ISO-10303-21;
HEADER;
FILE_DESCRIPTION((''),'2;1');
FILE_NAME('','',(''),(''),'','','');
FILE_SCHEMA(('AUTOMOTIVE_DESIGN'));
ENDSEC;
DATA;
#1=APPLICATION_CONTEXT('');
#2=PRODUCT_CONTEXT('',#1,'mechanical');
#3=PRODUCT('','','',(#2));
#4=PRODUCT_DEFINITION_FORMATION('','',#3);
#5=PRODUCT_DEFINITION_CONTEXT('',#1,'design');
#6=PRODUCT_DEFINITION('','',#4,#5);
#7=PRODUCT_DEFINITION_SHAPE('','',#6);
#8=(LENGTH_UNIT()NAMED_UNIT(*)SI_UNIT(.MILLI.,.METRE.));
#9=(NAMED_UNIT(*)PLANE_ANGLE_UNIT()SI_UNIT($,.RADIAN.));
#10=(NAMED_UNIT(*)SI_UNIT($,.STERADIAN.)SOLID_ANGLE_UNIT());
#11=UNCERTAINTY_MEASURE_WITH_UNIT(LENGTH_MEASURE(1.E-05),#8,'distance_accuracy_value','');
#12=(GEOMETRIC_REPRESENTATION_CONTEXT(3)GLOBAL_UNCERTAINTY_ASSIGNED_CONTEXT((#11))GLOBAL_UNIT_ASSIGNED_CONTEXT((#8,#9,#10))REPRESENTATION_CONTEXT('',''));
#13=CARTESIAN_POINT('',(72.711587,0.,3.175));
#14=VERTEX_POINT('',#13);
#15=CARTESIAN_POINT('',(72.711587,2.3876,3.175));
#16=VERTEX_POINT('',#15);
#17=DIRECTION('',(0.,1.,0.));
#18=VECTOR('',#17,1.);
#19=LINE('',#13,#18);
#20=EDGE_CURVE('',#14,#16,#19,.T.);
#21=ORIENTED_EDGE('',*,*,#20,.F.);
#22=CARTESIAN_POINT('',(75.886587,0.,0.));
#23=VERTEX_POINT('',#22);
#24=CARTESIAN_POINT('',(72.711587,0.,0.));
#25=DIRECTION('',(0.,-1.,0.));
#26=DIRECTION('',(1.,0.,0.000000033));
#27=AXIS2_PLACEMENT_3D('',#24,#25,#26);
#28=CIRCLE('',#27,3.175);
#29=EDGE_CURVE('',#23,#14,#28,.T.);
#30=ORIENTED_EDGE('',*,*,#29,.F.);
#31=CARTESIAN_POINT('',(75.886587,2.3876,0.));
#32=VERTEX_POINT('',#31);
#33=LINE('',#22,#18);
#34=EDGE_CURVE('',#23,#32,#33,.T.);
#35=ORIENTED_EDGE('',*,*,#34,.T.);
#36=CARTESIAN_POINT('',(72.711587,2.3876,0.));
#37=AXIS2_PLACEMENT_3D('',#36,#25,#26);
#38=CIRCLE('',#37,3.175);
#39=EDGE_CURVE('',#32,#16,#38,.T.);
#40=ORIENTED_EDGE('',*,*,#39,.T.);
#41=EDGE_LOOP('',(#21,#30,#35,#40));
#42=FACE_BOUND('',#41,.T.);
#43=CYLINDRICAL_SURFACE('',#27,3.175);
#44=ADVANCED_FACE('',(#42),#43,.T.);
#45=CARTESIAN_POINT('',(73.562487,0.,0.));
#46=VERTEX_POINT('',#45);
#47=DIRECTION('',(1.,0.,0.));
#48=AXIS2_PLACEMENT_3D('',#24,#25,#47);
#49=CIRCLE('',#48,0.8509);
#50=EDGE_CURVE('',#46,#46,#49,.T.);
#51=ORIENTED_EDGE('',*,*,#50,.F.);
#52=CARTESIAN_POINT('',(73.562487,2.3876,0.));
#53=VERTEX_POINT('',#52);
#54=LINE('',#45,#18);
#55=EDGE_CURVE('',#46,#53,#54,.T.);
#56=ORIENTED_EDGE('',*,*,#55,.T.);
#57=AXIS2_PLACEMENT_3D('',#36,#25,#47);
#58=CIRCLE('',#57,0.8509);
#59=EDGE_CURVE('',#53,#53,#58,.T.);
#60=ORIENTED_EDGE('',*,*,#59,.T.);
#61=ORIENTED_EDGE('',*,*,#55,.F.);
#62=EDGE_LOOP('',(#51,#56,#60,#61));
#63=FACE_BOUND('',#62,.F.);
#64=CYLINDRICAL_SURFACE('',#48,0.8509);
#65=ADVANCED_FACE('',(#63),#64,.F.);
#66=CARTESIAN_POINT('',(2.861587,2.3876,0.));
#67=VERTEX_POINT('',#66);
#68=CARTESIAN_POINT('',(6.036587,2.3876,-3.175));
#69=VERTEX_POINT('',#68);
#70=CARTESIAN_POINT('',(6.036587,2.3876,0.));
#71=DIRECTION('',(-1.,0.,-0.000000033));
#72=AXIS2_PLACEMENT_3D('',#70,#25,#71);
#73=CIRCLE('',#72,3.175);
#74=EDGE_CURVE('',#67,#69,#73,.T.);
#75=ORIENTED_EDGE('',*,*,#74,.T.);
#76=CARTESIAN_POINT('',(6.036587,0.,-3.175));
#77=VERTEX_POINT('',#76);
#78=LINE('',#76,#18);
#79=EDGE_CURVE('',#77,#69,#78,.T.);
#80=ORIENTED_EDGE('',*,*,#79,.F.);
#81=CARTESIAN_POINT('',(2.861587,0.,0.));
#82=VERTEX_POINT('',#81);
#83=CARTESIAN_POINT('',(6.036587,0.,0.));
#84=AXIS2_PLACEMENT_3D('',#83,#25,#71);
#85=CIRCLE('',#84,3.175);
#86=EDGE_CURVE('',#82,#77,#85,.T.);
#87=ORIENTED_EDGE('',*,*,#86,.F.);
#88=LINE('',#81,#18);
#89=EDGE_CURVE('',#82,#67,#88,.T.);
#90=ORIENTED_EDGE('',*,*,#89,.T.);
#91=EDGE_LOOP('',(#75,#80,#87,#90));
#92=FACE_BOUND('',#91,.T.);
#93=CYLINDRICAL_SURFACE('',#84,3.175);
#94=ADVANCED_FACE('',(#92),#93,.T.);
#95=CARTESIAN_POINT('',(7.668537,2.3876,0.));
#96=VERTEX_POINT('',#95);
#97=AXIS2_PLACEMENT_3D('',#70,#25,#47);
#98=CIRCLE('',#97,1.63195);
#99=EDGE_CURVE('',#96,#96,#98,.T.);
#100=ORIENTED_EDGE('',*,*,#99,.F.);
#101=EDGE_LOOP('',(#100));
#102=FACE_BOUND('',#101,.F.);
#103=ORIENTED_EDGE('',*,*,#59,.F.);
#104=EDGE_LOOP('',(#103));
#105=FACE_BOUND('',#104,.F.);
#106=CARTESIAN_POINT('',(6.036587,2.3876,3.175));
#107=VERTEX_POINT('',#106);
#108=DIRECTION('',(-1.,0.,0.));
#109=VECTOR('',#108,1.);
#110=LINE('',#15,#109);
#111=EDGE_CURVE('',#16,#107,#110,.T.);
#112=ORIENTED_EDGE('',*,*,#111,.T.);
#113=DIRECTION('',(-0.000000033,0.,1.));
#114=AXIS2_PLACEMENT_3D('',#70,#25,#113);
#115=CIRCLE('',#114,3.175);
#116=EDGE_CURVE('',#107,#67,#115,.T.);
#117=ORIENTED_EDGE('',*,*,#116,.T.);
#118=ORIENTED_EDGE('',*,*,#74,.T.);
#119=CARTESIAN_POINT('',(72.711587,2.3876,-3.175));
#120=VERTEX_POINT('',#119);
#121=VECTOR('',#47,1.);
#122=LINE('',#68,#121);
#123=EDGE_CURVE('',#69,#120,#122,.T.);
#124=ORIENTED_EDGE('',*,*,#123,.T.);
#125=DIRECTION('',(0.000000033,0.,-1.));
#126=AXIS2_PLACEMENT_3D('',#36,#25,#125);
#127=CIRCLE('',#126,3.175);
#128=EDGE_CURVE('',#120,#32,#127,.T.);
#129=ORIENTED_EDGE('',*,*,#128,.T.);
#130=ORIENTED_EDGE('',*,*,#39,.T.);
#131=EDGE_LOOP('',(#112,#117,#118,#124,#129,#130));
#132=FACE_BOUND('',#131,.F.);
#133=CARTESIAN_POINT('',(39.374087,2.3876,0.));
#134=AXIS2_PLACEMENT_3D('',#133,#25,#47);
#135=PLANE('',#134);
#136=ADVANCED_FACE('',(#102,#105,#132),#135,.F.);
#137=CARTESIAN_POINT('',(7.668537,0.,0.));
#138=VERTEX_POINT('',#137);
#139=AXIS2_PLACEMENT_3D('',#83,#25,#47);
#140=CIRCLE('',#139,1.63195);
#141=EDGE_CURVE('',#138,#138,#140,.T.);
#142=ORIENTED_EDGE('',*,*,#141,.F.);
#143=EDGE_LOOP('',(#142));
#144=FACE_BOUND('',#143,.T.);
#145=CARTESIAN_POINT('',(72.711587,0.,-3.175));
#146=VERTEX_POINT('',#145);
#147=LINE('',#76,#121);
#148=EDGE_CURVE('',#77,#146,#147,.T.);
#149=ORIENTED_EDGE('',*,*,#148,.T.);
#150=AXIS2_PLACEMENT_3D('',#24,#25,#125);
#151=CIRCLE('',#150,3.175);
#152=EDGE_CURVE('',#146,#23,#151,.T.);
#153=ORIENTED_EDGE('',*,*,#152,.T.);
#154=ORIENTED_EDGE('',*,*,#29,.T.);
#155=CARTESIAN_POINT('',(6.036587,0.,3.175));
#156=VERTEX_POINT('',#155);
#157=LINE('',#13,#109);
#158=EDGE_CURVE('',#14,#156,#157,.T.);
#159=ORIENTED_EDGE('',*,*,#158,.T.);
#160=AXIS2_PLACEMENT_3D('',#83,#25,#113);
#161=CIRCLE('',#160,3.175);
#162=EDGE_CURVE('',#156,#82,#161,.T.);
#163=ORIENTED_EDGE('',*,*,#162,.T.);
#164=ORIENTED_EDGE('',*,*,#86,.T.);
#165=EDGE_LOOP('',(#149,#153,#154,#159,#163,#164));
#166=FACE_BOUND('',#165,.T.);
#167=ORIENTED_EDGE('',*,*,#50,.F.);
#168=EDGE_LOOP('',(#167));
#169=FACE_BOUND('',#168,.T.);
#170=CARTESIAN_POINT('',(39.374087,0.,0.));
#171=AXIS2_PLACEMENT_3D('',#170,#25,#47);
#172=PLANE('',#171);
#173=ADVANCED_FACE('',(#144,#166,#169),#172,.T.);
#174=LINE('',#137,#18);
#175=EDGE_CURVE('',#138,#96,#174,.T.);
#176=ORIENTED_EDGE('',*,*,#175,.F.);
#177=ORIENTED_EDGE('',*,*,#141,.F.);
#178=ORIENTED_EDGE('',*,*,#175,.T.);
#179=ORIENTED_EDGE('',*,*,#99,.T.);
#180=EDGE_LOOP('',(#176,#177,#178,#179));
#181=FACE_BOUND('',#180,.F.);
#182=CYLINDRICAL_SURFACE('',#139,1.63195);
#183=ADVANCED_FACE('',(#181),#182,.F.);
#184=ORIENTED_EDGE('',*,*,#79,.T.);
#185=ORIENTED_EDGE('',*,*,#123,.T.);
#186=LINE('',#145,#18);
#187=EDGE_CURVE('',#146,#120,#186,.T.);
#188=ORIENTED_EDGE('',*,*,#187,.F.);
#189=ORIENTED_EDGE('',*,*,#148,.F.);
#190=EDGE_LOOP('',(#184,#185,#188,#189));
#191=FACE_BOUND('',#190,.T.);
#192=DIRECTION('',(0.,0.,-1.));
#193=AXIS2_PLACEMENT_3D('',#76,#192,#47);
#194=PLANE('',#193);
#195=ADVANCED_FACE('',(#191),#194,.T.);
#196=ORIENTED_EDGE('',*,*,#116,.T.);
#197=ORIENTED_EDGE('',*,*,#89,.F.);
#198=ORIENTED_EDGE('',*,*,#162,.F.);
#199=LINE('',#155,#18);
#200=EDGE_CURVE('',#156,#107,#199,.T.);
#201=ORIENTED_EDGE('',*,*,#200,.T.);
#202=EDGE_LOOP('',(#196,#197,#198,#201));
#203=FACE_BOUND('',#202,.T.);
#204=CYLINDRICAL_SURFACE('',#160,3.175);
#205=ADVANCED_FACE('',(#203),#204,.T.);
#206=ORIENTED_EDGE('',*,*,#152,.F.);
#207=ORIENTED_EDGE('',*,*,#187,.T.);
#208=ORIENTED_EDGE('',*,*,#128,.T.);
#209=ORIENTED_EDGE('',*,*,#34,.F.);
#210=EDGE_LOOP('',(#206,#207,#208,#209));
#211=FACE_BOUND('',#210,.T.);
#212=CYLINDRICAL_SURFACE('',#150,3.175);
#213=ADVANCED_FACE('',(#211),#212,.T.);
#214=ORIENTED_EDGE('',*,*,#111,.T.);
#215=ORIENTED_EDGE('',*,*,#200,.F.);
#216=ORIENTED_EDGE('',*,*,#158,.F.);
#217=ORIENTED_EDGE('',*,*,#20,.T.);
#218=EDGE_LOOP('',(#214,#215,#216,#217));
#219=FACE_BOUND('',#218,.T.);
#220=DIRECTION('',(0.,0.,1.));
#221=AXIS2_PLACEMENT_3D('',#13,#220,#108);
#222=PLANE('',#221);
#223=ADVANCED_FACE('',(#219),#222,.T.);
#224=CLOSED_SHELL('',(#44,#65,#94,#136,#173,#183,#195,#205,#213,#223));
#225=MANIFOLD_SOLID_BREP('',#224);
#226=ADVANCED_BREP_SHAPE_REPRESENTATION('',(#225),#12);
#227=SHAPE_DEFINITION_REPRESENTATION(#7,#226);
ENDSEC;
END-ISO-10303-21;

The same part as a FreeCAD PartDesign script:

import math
import FreeCAD as App
import Part
import Sketcher

V = App.Vector
Q = App.Units.Quantity

doc = App.newDocument("Part")
params = doc.addObject("Spreadsheet::Sheet", "Params")
for row, (alias, value) in enumerate([
    ("sketch1_diameter", "0.067 in"),
    ("sketch1_radius", "0.125 in"),
    ("sketch1_width", "2.625 in"),
    ("pad1_length", "0.094 in"),
], start=1):
    params.set(f"A{row}", alias)
    params.set(f"B{row}", "=" + value)
    params.setAlias(f"B{row}", alias)

body = doc.addObject("PartDesign::Body", "Body")

sketch1 = body.newObject("Sketcher::SketchObject", "Sketch")
sketch1.AttachmentSupport = (doc.getObject("XZ_Plane"), [""])
sketch1.MapMode = "FlatFace"
sketch1.addGeometry(Part.ArcOfCircle(Part.Circle(V(72.7, 0, 0), V(0, 0, 1), 3.2), math.radians(0), math.radians(90)), False)
sketch1.addGeometry(Part.LineSegment(V(72.7, 3.2, 0), V(6, 3.2, 0)), False)
sketch1.addGeometry(Part.ArcOfCircle(Part.Circle(V(6, 0, 0), V(0, 0, 1), 3.2), math.radians(90), math.radians(180)), False)
sketch1.addGeometry(Part.ArcOfCircle(Part.Circle(V(6, 0, 0), V(0, 0, 1), 3.2), math.radians(-180), math.radians(-90)), False)
sketch1.addGeometry(Part.LineSegment(V(6, -3.2, 0), V(72.7, -3.2, 0)), False)
sketch1.addGeometry(Part.ArcOfCircle(Part.Circle(V(72.7, 0, 0), V(0, 0, 1), 3.2), math.radians(-90), math.radians(0)), False)
sketch1.addGeometry(Part.Circle(V(6, 0, 0), V(0, 0, 1), 1.6), False)
sketch1.addGeometry(Part.Circle(V(72.7, 0, 0), V(0, 0, 1), 0.9), False)
sketch1.addConstraint(Sketcher.Constraint("Tangent", 0, 2, 1, 1))
sketch1.addConstraint(Sketcher.Constraint("Tangent", 1, 2, 2, 1))
sketch1.addConstraint(Sketcher.Constraint("Tangent", 2, 2, 3, 1))
sketch1.addConstraint(Sketcher.Constraint("Tangent", 3, 2, 4, 1))
sketch1.addConstraint(Sketcher.Constraint("Tangent", 4, 2, 5, 1))
sketch1.addConstraint(Sketcher.Constraint("Tangent", 5, 2, 0, 1))
sketch1.addConstraint(Sketcher.Constraint("Horizontal", 1))
sketch1.addConstraint(Sketcher.Constraint("Horizontal", 4))
sketch1.addConstraint(Sketcher.Constraint("Coincident", 6, 3, 2, 3))
sketch1.addConstraint(Sketcher.Constraint("Coincident", 7, 3, 0, 3))
sketch1.addConstraint(Sketcher.Constraint("Equal", 0, 2))
sketch1.addConstraint(Sketcher.Constraint("Equal", 2, 3))
sketch1.addConstraint(Sketcher.Constraint("PointOnObject", 0, 3, -1))
sketch1.addConstraint(Sketcher.Constraint("PointOnObject", 2, 2, -1))
sketch1.addConstraint(Sketcher.Constraint("PointOnObject", 5, 2, -1))
sketch1.addConstraint(Sketcher.Constraint("Diameter", 7, Q("0.067 in")))
sketch1.addConstraint(Sketcher.Constraint("Radius", 0, Q("0.125 in")))
sketch1.addConstraint(Sketcher.Constraint("Diameter", 6, Q("0.1285 in")))
sketch1.addConstraint(Sketcher.Constraint("DistanceX", 1, 2, 1, 1, Q("2.625 in")))
sketch1.addConstraint(Sketcher.Constraint("DistanceX", -1, 1, 0, 3, 72.711587))
sketch1.setExpression("Constraints[15]", "Params.sketch1_diameter")
sketch1.setExpression("Constraints[16]", "Params.sketch1_radius")
sketch1.setExpression("Constraints[18]", "Params.sketch1_width")
pad1 = body.newObject("PartDesign::Pad", "Pad")
pad1.Profile = sketch1
pad1.setExpression("Length", "Params.pad1_length")
pad1.Reversed = True

doc.recompute()
